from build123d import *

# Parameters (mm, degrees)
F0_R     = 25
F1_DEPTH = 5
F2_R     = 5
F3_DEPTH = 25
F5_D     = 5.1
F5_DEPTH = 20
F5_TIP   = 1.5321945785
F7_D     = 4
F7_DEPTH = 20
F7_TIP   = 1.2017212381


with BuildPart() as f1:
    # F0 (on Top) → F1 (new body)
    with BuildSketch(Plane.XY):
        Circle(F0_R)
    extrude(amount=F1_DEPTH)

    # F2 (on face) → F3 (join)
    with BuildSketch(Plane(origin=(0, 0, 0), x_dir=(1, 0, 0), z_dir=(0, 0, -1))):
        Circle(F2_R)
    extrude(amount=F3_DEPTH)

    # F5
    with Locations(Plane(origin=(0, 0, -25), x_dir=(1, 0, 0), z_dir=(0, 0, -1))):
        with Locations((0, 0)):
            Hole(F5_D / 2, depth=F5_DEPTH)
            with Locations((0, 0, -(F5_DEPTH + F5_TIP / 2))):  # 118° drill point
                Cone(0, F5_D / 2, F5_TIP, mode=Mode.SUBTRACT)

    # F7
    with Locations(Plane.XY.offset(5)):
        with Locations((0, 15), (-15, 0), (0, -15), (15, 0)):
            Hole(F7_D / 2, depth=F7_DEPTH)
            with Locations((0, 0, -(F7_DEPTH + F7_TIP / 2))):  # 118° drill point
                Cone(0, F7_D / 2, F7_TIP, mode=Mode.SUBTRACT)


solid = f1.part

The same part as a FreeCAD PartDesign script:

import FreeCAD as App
import Part
import Sketcher
Q = App.Units.Quantity

doc = App.newDocument("Part")
body = doc.addObject("PartDesign::Body", "Body")

sketch1 = body.newObject("Sketcher::SketchObject", "Sketch")
sketch1.AttachmentSupport = (doc.getObject("XY_Plane"), [""])
sketch1.MapMode = "FlatFace"
sketch1.addGeometry(Part.Circle(App.Vector(0, 0, 0), App.Vector(0, 0, 1), 25), False)
sketch1.addConstraint([
    Sketcher.Constraint("Coincident", 0, 3, -1, 1),
    Sketcher.Constraint("Diameter", 0, Q("50 mm")),
])
pad1 = body.newObject("PartDesign::Pad", "Pad")
pad1.Profile = sketch1
pad1.Length = 5

sketch2 = body.newObject("Sketcher::SketchObject", "Sketch001")
sketch2.AttachmentSupport = (doc.getObject("XY_Plane"), [""])
sketch2.MapMode = "FlatFace"
sketch2.addGeometry(Part.Circle(App.Vector(0, 0, 0), App.Vector(0, 0, 1), 5), False)
sketch2.addConstraint([
    Sketcher.Constraint("Coincident", 0, 3, -1, 1),
    Sketcher.Constraint("Diameter", 0, Q("10 mm")),
])
pad2 = body.newObject("PartDesign::Pad", "Pad001")
pad2.Profile = sketch2
pad2.Length = 25
pad2.Reversed = True

sketch3 = body.newObject("Sketcher::SketchObject", "Sketch002")
sketch3.AttachmentSupport = (doc.getObject("XY_Plane"), [""])
sketch3.MapMode = "FlatFace"
sketch3.AttachmentOffset = App.Placement(App.Vector(0, 0, -25), App.Rotation())
sketch3.addGeometry(Part.Circle(App.Vector(0, 0, 0), App.Vector(0, 0, 1), 2.5), False)
sketch3.addConstraint([
    Sketcher.Constraint("Coincident", 0, 3, -1, 1),
    Sketcher.Constraint("Diameter", 0, Q("5.1 mm")),
])
doc.recompute()
hole = body.newObject("PartDesign::Hole", "Hole")
hole.Profile = sketch3
hole.ThreadType = "None"
hole.Diameter = 5.1
hole.DepthType = "Dimension"
hole.Depth = 20
hole.DrillPoint = "Angled"
hole.DrillPointAngle = 118
hole.Reversed = True

sketch4 = body.newObject("Sketcher::SketchObject", "Sketch003")
sketch4.AttachmentSupport = (doc.getObject("XY_Plane"), [""])
sketch4.MapMode = "FlatFace"
sketch4.AttachmentOffset = App.Placement(App.Vector(0, 0, 5), App.Rotation())
sketch4.addGeometry([
    Part.Circle(App.Vector(0, 15, 0), App.Vector(0, 0, 1), 2),
    Part.Circle(App.Vector(-15, 0, 0), App.Vector(0, 0, 1), 2),
    Part.Circle(App.Vector(0, -15, 0), App.Vector(0, 0, 1), 2),
    Part.Circle(App.Vector(15, 0, 0), App.Vector(0, 0, 1), 2),
], False)
sketch4.addConstraint([
    Sketcher.Constraint("Equal", 0, 1),
    Sketcher.Constraint("Equal", 1, 2),
    Sketcher.Constraint("Equal", 2, 3),
    Sketcher.Constraint("Symmetric", 0, 3, 2, 3, -1, 1),
    Sketcher.Constraint("Symmetric", 1, 3, 3, 3, -1, 1),
    Sketcher.Constraint("PointOnObject", 0, 3, -2),
    Sketcher.Constraint("PointOnObject", 1, 3, -1),
    Sketcher.Constraint("Diameter", 0, Q("4 mm")),
    Sketcher.Constraint("DistanceY", -1, 1, 0, 3, Q("15 mm")),
    Sketcher.Constraint("DistanceX", 1, 3, -1, 1, Q("15 mm")),
])
doc.recompute()
hole2 = body.newObject("PartDesign::Hole", "Hole001")
hole2.Profile = sketch4
hole2.ThreadType = "None"
hole2.Diameter = 4
hole2.DepthType = "Dimension"
hole2.Depth = 20
hole2.DrillPoint = "Angled"
hole2.DrillPointAngle = 118

doc.recompute()
